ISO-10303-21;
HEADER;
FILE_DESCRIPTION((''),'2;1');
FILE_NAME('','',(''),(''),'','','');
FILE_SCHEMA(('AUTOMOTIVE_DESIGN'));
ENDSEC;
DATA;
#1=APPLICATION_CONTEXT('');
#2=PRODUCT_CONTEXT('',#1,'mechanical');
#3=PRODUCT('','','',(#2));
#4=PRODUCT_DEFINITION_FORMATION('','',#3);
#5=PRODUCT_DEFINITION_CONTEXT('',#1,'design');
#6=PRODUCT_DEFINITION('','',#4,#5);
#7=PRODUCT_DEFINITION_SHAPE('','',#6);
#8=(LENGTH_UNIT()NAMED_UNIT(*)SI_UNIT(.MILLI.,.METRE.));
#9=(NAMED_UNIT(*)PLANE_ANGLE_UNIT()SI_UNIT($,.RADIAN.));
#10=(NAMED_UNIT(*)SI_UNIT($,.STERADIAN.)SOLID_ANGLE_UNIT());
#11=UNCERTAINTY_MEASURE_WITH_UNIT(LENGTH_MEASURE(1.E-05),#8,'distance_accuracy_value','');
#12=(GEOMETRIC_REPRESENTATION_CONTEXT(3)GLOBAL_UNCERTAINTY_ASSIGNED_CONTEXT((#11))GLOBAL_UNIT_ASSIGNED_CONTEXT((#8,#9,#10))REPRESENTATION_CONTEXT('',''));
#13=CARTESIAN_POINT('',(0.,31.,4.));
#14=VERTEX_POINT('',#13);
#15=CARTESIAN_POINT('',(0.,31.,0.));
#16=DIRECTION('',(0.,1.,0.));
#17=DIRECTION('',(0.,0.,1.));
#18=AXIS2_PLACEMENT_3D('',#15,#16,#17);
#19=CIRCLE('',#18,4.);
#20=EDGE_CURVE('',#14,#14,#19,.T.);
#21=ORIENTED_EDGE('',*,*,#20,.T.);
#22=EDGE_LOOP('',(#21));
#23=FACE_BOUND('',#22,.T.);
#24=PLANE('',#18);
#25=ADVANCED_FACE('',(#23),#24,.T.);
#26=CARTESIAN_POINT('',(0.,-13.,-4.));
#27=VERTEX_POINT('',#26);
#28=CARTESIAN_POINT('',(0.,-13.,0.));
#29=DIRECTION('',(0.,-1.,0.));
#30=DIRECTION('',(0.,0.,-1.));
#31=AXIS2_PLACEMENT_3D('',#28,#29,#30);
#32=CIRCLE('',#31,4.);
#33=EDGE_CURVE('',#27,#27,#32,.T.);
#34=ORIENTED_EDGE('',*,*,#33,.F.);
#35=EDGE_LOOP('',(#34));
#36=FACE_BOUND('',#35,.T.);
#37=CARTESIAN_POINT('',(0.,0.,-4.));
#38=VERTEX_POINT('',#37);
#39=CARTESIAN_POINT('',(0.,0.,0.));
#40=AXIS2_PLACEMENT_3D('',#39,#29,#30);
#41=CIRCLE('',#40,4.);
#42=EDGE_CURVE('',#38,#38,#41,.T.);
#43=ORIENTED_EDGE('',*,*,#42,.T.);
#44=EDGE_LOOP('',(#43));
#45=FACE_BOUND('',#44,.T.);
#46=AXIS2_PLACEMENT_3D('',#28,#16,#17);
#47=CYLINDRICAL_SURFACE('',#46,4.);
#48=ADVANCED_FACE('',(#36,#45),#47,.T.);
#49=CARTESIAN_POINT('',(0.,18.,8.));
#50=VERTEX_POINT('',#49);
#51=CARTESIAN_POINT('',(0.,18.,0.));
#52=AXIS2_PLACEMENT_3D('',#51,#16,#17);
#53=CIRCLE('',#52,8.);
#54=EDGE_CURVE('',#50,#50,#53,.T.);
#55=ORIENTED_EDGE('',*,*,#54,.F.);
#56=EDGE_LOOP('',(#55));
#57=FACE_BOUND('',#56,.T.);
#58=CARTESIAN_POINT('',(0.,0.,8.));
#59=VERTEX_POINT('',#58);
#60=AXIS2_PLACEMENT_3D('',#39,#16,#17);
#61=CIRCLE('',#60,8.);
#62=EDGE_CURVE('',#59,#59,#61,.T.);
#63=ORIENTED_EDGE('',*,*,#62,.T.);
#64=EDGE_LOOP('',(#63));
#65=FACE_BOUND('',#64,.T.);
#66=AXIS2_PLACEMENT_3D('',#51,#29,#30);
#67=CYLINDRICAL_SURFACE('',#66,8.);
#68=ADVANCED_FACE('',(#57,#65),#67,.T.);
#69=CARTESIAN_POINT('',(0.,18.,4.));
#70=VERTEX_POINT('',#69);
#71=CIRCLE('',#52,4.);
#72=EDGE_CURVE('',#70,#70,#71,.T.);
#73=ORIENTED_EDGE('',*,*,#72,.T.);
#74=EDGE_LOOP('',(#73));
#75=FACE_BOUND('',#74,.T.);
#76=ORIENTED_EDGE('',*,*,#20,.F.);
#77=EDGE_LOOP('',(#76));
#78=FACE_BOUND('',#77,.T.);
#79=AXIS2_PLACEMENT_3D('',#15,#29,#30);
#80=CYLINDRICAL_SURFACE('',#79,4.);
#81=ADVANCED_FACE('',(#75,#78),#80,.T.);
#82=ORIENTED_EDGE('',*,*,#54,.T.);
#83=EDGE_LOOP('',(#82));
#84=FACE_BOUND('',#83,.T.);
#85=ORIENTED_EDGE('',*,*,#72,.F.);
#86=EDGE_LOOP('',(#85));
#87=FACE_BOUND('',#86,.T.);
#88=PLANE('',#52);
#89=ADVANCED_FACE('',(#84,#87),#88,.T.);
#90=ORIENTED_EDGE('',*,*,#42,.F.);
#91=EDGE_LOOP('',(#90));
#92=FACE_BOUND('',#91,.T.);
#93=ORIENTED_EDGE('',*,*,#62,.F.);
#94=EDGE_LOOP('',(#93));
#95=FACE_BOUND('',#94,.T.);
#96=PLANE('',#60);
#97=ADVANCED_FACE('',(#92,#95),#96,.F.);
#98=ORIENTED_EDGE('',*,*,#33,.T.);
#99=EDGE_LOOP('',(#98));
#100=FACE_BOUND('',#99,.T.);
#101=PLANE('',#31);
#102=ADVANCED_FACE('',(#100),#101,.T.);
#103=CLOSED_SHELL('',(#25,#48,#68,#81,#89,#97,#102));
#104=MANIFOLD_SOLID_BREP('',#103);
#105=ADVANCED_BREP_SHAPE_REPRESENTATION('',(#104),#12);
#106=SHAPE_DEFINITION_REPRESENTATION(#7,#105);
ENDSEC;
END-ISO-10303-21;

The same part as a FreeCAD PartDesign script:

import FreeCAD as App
import Part
import Sketcher
from FreeCAD import Vector

doc = App.newDocument("Part")
params = doc.addObject("Spreadsheet::Sheet", "Params")
for row, (alias, value) in enumerate([
    ("sketch1_diameter", "16 mm"),
    ("pad1_length", "18 mm"),
    ("sketch2_diameter", "8 mm"),
    ("pad2_length", "13 mm"),
    ("sketch3_diameter", "8 mm"),
    ("pad3_length", "13 mm"),
], start=1):
    params.set(f"A{row}", alias)
    params.set(f"B{row}", "=" + value)
    params.setAlias(f"B{row}", alias)

body = doc.addObject("PartDesign::Body", "Body")

sketch1 = body.newObject("Sketcher::SketchObject", "Sketch")
sketch1.AttachmentSupport = (doc.getObject("XZ_Plane"), [""])
sketch1.MapMode = "FlatFace"
sketch1.addGeometry(Part.Circle(Vector(0, 0, 0), Vector(0, 0, 1), 8), False)
sketch1.addConstraint([
    Sketcher.Constraint("Coincident", 0, 3, -1, 1),
    Sketcher.Constraint("Diameter", 0, 16.0),
])
sketch1.setExpression("Constraints[1]", "Params.sketch1_diameter")
pad1 = body.newObject("PartDesign::Pad", "Pad")
pad1.Profile = sketch1
pad1.setExpression("Length", "Params.pad1_length")
pad1.Reversed = True

sketch2 = body.newObject("Sketcher::SketchObject", "Sketch001")
sketch2.AttachmentSupport = (doc.getObject("XZ_Plane"), [""])
sketch2.MapMode = "FlatFace"
sketch2.AttachmentOffset = App.Placement(Vector(0, 0, -18), App.Rotation())
sketch2.addGeometry(Part.Circle(Vector(0, 0, 0), Vector(0, 0, 1), 4), False)
sketch2.addConstraint([
    Sketcher.Constraint("Coincident", 0, 3, -1, 1),
    Sketcher.Constraint("Diameter", 0, 8.0),
])
sketch2.setExpression("Constraints[1]", "Params.sketch2_diameter")
pad2 = body.newObject("PartDesign::Pad", "Pad001")
pad2.Profile = sketch2
pad2.setExpression("Length", "Params.pad2_length")
pad2.Reversed = True

sketch3 = body.newObject("Sketcher::SketchObject", "Sketch002")
sketch3.AttachmentSupport = (doc.getObject("XZ_Plane"), [""])
sketch3.MapMode = "FlatFace"
sketch3.addGeometry(Part.Circle(Vector(0, 0, 0), Vector(0, 0, 1), 4), False)
sketch3.addConstraint([
    Sketcher.Constraint("Coincident", 0, 3, -1, 1),
    Sketcher.Constraint("Diameter", 0, 8.0),
])
sketch3.setExpression("Constraints[1]", "Params.sketch3_diameter")
pad3 = body.newObject("PartDesign::Pad", "Pad002")
pad3.Profile = sketch3
pad3.setExpression("Length", "Params.pad3_length")

doc.recompute()
